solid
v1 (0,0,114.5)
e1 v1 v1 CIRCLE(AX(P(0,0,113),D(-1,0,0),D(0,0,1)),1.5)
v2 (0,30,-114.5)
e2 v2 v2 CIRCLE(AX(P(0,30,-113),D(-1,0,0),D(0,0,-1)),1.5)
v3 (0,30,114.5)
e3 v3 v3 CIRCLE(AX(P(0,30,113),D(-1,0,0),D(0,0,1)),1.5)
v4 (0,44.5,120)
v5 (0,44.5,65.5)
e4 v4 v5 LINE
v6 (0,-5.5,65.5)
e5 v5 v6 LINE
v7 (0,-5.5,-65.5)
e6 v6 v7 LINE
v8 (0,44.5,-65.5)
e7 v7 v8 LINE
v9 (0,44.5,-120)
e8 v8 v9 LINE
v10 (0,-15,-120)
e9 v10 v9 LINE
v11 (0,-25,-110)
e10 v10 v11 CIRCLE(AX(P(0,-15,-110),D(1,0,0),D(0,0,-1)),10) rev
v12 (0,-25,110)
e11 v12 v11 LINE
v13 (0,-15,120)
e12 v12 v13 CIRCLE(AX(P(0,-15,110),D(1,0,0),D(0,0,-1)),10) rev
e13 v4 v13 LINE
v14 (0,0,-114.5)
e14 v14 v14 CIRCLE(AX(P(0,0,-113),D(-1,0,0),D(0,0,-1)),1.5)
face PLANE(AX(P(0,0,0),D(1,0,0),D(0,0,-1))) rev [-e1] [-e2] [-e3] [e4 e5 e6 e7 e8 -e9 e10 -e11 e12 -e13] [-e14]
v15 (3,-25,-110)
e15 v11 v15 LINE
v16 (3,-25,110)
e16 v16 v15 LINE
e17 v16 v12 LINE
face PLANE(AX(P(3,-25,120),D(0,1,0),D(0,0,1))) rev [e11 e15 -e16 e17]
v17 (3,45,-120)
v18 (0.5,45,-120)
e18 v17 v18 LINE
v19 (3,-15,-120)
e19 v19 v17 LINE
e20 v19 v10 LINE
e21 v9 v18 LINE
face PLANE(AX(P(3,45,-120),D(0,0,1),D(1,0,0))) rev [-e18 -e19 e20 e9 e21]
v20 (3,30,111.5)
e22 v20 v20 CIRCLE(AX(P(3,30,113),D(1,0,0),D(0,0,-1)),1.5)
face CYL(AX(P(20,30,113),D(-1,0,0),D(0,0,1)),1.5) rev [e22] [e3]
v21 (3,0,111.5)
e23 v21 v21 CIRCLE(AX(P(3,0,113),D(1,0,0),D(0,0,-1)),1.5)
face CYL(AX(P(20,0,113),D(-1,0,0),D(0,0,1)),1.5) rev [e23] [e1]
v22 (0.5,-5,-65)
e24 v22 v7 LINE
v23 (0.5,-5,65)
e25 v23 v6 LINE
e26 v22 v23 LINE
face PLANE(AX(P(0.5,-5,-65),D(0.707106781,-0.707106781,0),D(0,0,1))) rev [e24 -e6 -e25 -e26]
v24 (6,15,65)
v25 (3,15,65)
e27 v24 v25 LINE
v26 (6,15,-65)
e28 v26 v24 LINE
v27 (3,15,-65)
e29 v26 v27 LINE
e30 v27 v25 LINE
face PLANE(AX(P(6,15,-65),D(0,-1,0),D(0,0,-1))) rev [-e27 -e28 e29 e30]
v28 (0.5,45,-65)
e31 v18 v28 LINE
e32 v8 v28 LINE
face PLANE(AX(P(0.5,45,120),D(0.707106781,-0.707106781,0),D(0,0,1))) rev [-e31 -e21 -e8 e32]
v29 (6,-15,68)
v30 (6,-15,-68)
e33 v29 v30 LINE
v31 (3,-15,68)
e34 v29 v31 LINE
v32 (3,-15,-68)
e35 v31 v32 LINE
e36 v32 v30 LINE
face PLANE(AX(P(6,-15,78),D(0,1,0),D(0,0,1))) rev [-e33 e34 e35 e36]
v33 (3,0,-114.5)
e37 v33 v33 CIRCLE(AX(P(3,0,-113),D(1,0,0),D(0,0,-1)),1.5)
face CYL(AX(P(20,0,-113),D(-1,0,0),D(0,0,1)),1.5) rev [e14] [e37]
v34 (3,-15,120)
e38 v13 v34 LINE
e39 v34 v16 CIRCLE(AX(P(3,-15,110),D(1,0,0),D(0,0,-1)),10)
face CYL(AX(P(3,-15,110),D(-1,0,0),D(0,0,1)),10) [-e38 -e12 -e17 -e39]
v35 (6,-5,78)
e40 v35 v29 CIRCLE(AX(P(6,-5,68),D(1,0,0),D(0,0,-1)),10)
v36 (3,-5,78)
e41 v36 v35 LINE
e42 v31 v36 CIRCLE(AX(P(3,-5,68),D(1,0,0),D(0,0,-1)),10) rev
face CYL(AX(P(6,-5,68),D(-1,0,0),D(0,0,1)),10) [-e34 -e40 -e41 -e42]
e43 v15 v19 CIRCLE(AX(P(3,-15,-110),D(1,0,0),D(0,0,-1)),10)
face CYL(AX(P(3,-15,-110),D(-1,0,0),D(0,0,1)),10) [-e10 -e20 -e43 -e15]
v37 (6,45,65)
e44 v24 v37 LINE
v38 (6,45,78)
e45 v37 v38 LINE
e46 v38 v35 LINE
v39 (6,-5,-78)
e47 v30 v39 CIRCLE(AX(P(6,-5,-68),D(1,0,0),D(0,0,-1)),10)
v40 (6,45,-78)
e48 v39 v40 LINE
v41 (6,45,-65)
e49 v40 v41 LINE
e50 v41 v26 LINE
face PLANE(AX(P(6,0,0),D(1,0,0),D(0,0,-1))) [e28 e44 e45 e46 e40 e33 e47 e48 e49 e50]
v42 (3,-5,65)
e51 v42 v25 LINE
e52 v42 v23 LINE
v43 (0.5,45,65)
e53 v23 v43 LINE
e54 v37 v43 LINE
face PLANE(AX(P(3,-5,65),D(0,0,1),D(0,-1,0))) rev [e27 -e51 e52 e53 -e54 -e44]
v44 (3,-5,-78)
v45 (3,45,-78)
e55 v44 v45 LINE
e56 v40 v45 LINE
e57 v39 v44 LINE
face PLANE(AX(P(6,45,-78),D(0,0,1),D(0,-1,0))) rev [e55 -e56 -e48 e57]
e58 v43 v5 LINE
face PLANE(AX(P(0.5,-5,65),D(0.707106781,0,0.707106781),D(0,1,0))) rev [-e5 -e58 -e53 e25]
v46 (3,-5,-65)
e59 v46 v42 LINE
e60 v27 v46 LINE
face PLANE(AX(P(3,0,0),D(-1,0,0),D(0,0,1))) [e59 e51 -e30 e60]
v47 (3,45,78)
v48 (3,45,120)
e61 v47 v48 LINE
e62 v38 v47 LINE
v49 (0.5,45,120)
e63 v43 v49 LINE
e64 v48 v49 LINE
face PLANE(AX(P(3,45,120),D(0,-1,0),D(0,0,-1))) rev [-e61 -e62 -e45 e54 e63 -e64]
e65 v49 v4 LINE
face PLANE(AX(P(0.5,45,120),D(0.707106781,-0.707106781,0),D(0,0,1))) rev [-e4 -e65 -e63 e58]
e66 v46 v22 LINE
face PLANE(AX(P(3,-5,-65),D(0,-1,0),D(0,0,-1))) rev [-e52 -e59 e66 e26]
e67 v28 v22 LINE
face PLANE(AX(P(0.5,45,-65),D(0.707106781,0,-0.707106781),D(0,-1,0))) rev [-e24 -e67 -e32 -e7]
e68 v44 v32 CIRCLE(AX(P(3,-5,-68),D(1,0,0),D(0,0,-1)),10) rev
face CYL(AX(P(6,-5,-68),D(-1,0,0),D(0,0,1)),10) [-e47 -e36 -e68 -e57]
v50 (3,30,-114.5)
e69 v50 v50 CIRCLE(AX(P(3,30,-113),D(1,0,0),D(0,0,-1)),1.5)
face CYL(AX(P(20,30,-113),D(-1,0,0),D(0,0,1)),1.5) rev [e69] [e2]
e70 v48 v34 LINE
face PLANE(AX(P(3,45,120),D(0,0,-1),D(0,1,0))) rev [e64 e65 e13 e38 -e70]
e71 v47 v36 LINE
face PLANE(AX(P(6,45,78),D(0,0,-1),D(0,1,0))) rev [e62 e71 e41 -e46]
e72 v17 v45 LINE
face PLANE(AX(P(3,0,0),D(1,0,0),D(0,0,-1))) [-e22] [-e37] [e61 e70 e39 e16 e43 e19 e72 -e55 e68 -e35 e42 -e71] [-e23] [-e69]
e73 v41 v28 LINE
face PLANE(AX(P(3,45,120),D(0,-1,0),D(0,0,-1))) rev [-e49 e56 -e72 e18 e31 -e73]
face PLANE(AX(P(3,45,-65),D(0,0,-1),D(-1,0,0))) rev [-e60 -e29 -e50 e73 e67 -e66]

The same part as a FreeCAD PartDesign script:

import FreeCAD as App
import Part
import Sketcher
from FreeCAD import Vector
Q = App.Units.Quantity


def edges_at(feature, points):
    """Names of the edges that pass closest to the given points."""
    edges = feature.Shape.Edges
    near = lambda p: min(range(len(edges)), key=lambda i: edges[i].distToShape(Part.Vertex(*p))[0])
    return sorted({f"Edge{near(p) + 1}" for p in points})

doc = App.newDocument("Part")
body = doc.addObject("PartDesign::Body", "Body")

sketch1 = body.newObject("Sketcher::SketchObject", "Sketch")
sketch1.AttachmentSupport = (doc.getObject("YZ_Plane"), [""])
sketch1.MapMode = "FlatFace"
sketch1.addGeometry(Part.LineSegment(Vector(45, 120, 0), Vector(-25, 120, 0)), False)
sketch1.addGeometry(Part.LineSegment(Vector(-25, 120, 0), Vector(-25, -120, 0)), False)
sketch1.addGeometry(Part.LineSegment(Vector(-25, -120, 0), Vector(45, -120, 0)), False)
sketch1.addGeometry(Part.LineSegment(Vector(45, -120, 0), Vector(45, 120, 0)), False)
sketch1.addConstraint(Sketcher.Constraint("Coincident", 0, 2, 1, 1))
sketch1.addConstraint(Sketcher.Constraint("Coincident", 1, 2, 2, 1))
sketch1.addConstraint(Sketcher.Constraint("Coincident", 2, 2, 3, 1))
sketch1.addConstraint(Sketcher.Constraint("Coincident", 3, 2, 0, 1))
sketch1.addConstraint(Sketcher.Constraint("Horizontal", 0))
sketch1.addConstraint(Sketcher.Constraint("Vertical", 1))
sketch1.addConstraint(Sketcher.Constraint("Horizontal", 2))
sketch1.addConstraint(Sketcher.Constraint("Vertical", 3))
sketch1.addConstraint(Sketcher.Constraint("DistanceX", 0, 2, 0, 1, Q("70 mm")))
sketch1.addConstraint(Sketcher.Constraint("DistanceY", 1, 2, 1, 1, Q("240 mm")))
sketch1.addConstraint(Sketcher.Constraint("DistanceX", 0, 2, -1, 1, Q("25 mm")))
sketch1.addConstraint(Sketcher.Constraint("DistanceY", -1, 1, 0, 2, Q("120 mm")))
pad1 = body.newObject("PartDesign::Pad", "Pad")
pad1.Profile = sketch1
pad1.Length = 3

sketch2 = body.newObject("Sketcher::SketchObject", "Sketch001")
sketch2.AttachmentSupport = (doc.getObject("YZ_Plane"), [""])
sketch2.MapMode = "FlatFace"
sketch2.AttachmentOffset = App.Placement(Vector(0, 0, 3), App.Rotation())
sketch2.addGeometry(Part.LineSegment(Vector(45, 78, 0), Vector(-15, 78, 0)), False)
sketch2.addGeometry(Part.LineSegment(Vector(-15, 78, 0), Vector(-15, -78, 0)), False)
sketch2.addGeometry(Part.LineSegment(Vector(-15, -78, 0), Vector(45, -78, 0)), False)
sketch2.addGeometry(Part.LineSegment(Vector(45, -78, 0), Vector(45, 78, 0)), False)
sketch2.addConstraint(Sketcher.Constraint("Coincident", 0, 2, 1, 1))
sketch2.addConstraint(Sketcher.Constraint("Coincident", 1, 2, 2, 1))
sketch2.addConstraint(Sketcher.Constraint("Coincident", 2, 2, 3, 1))
sketch2.addConstraint(Sketcher.Constraint("Coincident", 3, 2, 0, 1))
sketch2.addConstraint(Sketcher.Constraint("Horizontal", 0))
sketch2.addConstraint(Sketcher.Constraint("Vertical", 1))
sketch2.addConstraint(Sketcher.Constraint("Horizontal", 2))
sketch2.addConstraint(Sketcher.Constraint("Vertical", 3))
sketch2.addConstraint(Sketcher.Constraint("DistanceX", 0, 2, 0, 1, Q("60 mm")))
sketch2.addConstraint(Sketcher.Constraint("DistanceY", 1, 2, 1, 1, Q("156 mm")))
sketch2.addConstraint(Sketcher.Constraint("DistanceX", 0, 2, -1, 1, Q("15 mm")))
sketch2.addConstraint(Sketcher.Constraint("DistanceY", -1, 1, 0, 2, Q("78 mm")))
pad2 = body.newObject("PartDesign::Pad", "Pad001")
pad2.Profile = sketch2
pad2.Length = 3

sketch3 = body.newObject("Sketcher::SketchObject", "Sketch002")
sketch3.AttachmentSupport = (doc.getObject("YZ_Plane"), [""])
sketch3.MapMode = "FlatFace"
sketch3.addGeometry(Part.Circle(Vector(30, 113, 0), Vector(0, 0, 1), 1.5), False)
sketch3.addGeometry(Part.Circle(Vector(0, 113, 0), Vector(0, 0, 1), 1.5), False)
sketch3.addGeometry(Part.Circle(Vector(0, -113, 0), Vector(0, 0, 1), 1.5), False)
sketch3.addGeometry(Part.Circle(Vector(30, -113, 0), Vector(0, 0, 1), 1.5), False)
sketch3.addConstraint(Sketcher.Constraint("Equal", 0, 1))
sketch3.addConstraint(Sketcher.Constraint("Equal", 1, 2))
sketch3.addConstraint(Sketcher.Constraint("Equal", 2, 3))
sketch3.addConstraint(Sketcher.Constraint("Symmetric", 1, 3, 2, 3, -1, 1))
sketch3.addConstraint(Sketcher.Constraint("Symmetric", 0, 3, 3, 3, -1))
sketch3.addConstraint(Sketcher.Constraint("PointOnObject", 1, 3, -2))
sketch3.addConstraint(Sketcher.Constraint("Horizontal", 0, 3, 1, 3))
sketch3.addConstraint(Sketcher.Constraint("Diameter", 0, Q("3 mm")))
sketch3.addConstraint(Sketcher.Constraint("DistanceX", -1, 1, 0, 3, Q("30 mm")))
sketch3.addConstraint(Sketcher.Constraint("DistanceY", -1, 1, 0, 3, Q("113 mm")))
pocket1 = body.newObject("PartDesign::Pocket", "Pocket")
pocket1.Profile = sketch3
pocket1.Length = 20
pocket1.Reversed = True
doc.recompute()

fillet = body.newObject("PartDesign::Fillet", "Fillet")
fillet.Base = (pocket1, edges_at(pocket1, [(1.5, -25, -120), (1.5, -25, 120)]))
fillet.Radius = 10
doc.recompute()

fillet2 = body.newObject("PartDesign::Fillet", "Fillet001")
fillet2.Base = (fillet, edges_at(fillet, [(4.5, -15, 78), (4.5, -15, -78)]))
fillet2.Radius = 10

sketch4 = body.newObject("Sketcher::SketchObject", "Sketch003")
sketch4.AttachmentSupport = (doc.getObject("YZ_Plane"), [""])
sketch4.MapMode = "FlatFace"
sketch4.addGeometry(Part.LineSegment(Vector(45, -65, 0), Vector(-5, -65, 0)), False)
sketch4.addGeometry(Part.LineSegment(Vector(-5, -65, 0), Vector(-5, 65, 0)), False)
sketch4.addGeometry(Part.LineSegment(Vector(-5, 65, 0), Vector(45, 65, 0)), False)
sketch4.addGeometry(Part.LineSegment(Vector(45, 65, 0), Vector(45, -65, 0)), False)
sketch4.addConstraint(Sketcher.Constraint("Coincident", 0, 2, 1, 1))
sketch4.addConstraint(Sketcher.Constraint("Coincident", 1, 2, 2, 1))
sketch4.addConstraint(Sketcher.Constraint("Coincident", 2, 2, 3, 1))
sketch4.addConstraint(Sketcher.Constraint("Coincident", 3, 2, 0, 1))
sketch4.addConstraint(Sketcher.Constraint("Horizontal", 0))
sketch4.addConstraint(Sketcher.Constraint("Vertical", 1))
sketch4.addConstraint(Sketcher.Constraint("Horizontal", 2))
sketch4.addConstraint(Sketcher.Constraint("Vertical", 3))
sketch4.addConstraint(Sketcher.Constraint("DistanceX", 0, 2, 0, 1, Q("50 mm")))
sketch4.addConstraint(Sketcher.Constraint("DistanceY", 1, 1, 1, 2, Q("130 mm")))
sketch4.addConstraint(Sketcher.Constraint("DistanceX", 0, 2, -1, 1, Q("5 mm")))
sketch4.addConstraint(Sketcher.Constraint("DistanceY", 0, 2, -1, 1, Q("65 mm")))
pocket2 = body.newObject("PartDesign::Pocket", "Pocket001")
pocket2.Profile = sketch4
pocket2.Length = 3
pocket2.Reversed = True

sketch5 = body.newObject("Sketcher::SketchObject", "Sketch004")
sketch5.AttachmentSupport = (doc.getObject("YZ_Plane"), [""])
sketch5.MapMode = "FlatFace"
sketch5.AttachmentOffset = App.Placement(Vector(0, 0, 3), App.Rotation())
sketch5.addGeometry(Part.LineSegment(Vector(45, -65, 0), Vector(15, -65, 0)), False)
sketch5.addGeometry(Part.LineSegment(Vector(15, -65, 0), Vector(15, 65, 0)), False)
sketch5.addGeometry(Part.LineSegment(Vector(15, 65, 0), Vector(45, 65, 0)), False)
sketch5.addGeometry(Part.LineSegment(Vector(45, 65, 0), Vector(45, -65, 0)), False)
sketch5.addConstraint(Sketcher.Constraint("Coincident", 0, 2, 1, 1))
sketch5.addConstraint(Sketcher.Constraint("Coincident", 1, 2, 2, 1))
sketch5.addConstraint(Sketcher.Constraint("Coincident", 2, 2, 3, 1))
sketch5.addConstraint(Sketcher.Constraint("Coincident", 3, 2, 0, 1))
sketch5.addConstraint(Sketcher.Constraint("Horizontal", 0))
sketch5.addConstraint(Sketcher.Constraint("Vertical", 1))
sketch5.addConstraint(Sketcher.Constraint("Horizontal", 2))
sketch5.addConstraint(Sketcher.Constraint("Vertical", 3))
sketch5.addConstraint(Sketcher.Constraint("DistanceX", 0, 2, 0, 1, Q("30 mm")))
sketch5.addConstraint(Sketcher.Constraint("DistanceY", 1, 1, 1, 2, Q("130 mm")))
sketch5.addConstraint(Sketcher.Constraint("DistanceX", -1, 1, 0, 2, Q("15 mm")))
sketch5.addConstraint(Sketcher.Constraint("DistanceY", 0, 2, -1, 1, Q("65 mm")))
pocket3 = body.newObject("PartDesign::Pocket", "Pocket002")
pocket3.Profile = sketch5
pocket3.Length = 3
pocket3.Reversed = True
doc.recompute()

chamfer = body.newObject("PartDesign::Chamfer", "Chamfer")
chamfer.Base = (pocket3, edges_at(pocket3, [(0, 45, -92.5), (0, 45, 92.5)]))
chamfer.Size = 0.5
doc.recompute()

chamfer2 = body.newObject("PartDesign::Chamfer", "Chamfer001")
chamfer2.Base = (chamfer, edges_at(chamfer, [(0, 19.75, 65), (0, -5, 0), (0, 19.75, -65)]))
chamfer2.Size = 0.5

doc.recompute()
